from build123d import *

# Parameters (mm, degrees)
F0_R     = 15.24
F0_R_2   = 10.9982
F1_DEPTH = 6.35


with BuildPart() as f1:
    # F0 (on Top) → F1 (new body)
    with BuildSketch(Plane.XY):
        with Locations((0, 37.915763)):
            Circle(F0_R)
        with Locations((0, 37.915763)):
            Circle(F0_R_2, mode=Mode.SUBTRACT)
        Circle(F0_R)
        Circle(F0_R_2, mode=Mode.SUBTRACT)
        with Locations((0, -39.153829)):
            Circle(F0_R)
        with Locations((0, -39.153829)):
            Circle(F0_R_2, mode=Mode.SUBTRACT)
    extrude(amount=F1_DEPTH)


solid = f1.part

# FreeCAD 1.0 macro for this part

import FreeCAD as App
import Part
import Sketcher
from FreeCAD import Vector
Q = App.Units.Quantity

doc = App.newDocument("Part")
body = doc.addObject("PartDesign::Body", "Body")
body.AllowCompound = True

# Sketch on XY plane
sketch1 = body.newObject("Sketcher::SketchObject", "Sketch")
sketch1.AttachmentSupport = (doc.getObject("XY_Plane"), [""])
sketch1.MapMode = "FlatFace"
sketch1.addGeometry([
    Part.Circle(Vector(0, 38, 0), Vector(0, 0, 1), 15),  # 0
    Part.Circle(Vector(0, 38, 0), Vector(0, 0, 1), 11),  # 1
    Part.Circle(Vector(0, 0, 0), Vector(0, 0, 1), 15),  # 2
    Part.Circle(Vector(0, 0, 0), Vector(0, 0, 1), 11),  # 3
    Part.Circle(Vector(0, -39, 0), Vector(0, 0, 1), 15),  # 4
    Part.Circle(Vector(0, -39, 0), Vector(0, 0, 1), 11),  # 5
], False)
sketch1.addConstraint([
    Sketcher.Constraint("Coincident", 2, 3, -1, 1),
    Sketcher.Constraint("Coincident", 3, 3, -1, 1),
    Sketcher.Constraint("Coincident", 1, 3, 0, 3),
    Sketcher.Constraint("Coincident", 5, 3, 4, 3),
    Sketcher.Constraint("Equal", 0, 2),
    Sketcher.Constraint("Equal", 1, 3),
    Sketcher.Constraint("Equal", 2, 4),
    Sketcher.Constraint("Equal", 3, 5),
    Sketcher.Constraint("PointOnObject", 0, 3, -2),
    Sketcher.Constraint("PointOnObject", 4, 3, -2),
    Sketcher.Constraint("Diameter", 0, Q("1.2 in")),
    Sketcher.Constraint("Diameter", 1, Q("0.866 in")),
    Sketcher.Constraint("DistanceY", 4, 3, -1, 1, Q("39.153829 mm")),
    Sketcher.Constraint("DistanceY", 4, 3, 0, 3, Q("77.069592 mm")),
])
pad1 = body.newObject("PartDesign::Pad", "Pad")
pad1.Profile = sketch1
pad1.Length = Q("0.25 in")

doc.recompute()
